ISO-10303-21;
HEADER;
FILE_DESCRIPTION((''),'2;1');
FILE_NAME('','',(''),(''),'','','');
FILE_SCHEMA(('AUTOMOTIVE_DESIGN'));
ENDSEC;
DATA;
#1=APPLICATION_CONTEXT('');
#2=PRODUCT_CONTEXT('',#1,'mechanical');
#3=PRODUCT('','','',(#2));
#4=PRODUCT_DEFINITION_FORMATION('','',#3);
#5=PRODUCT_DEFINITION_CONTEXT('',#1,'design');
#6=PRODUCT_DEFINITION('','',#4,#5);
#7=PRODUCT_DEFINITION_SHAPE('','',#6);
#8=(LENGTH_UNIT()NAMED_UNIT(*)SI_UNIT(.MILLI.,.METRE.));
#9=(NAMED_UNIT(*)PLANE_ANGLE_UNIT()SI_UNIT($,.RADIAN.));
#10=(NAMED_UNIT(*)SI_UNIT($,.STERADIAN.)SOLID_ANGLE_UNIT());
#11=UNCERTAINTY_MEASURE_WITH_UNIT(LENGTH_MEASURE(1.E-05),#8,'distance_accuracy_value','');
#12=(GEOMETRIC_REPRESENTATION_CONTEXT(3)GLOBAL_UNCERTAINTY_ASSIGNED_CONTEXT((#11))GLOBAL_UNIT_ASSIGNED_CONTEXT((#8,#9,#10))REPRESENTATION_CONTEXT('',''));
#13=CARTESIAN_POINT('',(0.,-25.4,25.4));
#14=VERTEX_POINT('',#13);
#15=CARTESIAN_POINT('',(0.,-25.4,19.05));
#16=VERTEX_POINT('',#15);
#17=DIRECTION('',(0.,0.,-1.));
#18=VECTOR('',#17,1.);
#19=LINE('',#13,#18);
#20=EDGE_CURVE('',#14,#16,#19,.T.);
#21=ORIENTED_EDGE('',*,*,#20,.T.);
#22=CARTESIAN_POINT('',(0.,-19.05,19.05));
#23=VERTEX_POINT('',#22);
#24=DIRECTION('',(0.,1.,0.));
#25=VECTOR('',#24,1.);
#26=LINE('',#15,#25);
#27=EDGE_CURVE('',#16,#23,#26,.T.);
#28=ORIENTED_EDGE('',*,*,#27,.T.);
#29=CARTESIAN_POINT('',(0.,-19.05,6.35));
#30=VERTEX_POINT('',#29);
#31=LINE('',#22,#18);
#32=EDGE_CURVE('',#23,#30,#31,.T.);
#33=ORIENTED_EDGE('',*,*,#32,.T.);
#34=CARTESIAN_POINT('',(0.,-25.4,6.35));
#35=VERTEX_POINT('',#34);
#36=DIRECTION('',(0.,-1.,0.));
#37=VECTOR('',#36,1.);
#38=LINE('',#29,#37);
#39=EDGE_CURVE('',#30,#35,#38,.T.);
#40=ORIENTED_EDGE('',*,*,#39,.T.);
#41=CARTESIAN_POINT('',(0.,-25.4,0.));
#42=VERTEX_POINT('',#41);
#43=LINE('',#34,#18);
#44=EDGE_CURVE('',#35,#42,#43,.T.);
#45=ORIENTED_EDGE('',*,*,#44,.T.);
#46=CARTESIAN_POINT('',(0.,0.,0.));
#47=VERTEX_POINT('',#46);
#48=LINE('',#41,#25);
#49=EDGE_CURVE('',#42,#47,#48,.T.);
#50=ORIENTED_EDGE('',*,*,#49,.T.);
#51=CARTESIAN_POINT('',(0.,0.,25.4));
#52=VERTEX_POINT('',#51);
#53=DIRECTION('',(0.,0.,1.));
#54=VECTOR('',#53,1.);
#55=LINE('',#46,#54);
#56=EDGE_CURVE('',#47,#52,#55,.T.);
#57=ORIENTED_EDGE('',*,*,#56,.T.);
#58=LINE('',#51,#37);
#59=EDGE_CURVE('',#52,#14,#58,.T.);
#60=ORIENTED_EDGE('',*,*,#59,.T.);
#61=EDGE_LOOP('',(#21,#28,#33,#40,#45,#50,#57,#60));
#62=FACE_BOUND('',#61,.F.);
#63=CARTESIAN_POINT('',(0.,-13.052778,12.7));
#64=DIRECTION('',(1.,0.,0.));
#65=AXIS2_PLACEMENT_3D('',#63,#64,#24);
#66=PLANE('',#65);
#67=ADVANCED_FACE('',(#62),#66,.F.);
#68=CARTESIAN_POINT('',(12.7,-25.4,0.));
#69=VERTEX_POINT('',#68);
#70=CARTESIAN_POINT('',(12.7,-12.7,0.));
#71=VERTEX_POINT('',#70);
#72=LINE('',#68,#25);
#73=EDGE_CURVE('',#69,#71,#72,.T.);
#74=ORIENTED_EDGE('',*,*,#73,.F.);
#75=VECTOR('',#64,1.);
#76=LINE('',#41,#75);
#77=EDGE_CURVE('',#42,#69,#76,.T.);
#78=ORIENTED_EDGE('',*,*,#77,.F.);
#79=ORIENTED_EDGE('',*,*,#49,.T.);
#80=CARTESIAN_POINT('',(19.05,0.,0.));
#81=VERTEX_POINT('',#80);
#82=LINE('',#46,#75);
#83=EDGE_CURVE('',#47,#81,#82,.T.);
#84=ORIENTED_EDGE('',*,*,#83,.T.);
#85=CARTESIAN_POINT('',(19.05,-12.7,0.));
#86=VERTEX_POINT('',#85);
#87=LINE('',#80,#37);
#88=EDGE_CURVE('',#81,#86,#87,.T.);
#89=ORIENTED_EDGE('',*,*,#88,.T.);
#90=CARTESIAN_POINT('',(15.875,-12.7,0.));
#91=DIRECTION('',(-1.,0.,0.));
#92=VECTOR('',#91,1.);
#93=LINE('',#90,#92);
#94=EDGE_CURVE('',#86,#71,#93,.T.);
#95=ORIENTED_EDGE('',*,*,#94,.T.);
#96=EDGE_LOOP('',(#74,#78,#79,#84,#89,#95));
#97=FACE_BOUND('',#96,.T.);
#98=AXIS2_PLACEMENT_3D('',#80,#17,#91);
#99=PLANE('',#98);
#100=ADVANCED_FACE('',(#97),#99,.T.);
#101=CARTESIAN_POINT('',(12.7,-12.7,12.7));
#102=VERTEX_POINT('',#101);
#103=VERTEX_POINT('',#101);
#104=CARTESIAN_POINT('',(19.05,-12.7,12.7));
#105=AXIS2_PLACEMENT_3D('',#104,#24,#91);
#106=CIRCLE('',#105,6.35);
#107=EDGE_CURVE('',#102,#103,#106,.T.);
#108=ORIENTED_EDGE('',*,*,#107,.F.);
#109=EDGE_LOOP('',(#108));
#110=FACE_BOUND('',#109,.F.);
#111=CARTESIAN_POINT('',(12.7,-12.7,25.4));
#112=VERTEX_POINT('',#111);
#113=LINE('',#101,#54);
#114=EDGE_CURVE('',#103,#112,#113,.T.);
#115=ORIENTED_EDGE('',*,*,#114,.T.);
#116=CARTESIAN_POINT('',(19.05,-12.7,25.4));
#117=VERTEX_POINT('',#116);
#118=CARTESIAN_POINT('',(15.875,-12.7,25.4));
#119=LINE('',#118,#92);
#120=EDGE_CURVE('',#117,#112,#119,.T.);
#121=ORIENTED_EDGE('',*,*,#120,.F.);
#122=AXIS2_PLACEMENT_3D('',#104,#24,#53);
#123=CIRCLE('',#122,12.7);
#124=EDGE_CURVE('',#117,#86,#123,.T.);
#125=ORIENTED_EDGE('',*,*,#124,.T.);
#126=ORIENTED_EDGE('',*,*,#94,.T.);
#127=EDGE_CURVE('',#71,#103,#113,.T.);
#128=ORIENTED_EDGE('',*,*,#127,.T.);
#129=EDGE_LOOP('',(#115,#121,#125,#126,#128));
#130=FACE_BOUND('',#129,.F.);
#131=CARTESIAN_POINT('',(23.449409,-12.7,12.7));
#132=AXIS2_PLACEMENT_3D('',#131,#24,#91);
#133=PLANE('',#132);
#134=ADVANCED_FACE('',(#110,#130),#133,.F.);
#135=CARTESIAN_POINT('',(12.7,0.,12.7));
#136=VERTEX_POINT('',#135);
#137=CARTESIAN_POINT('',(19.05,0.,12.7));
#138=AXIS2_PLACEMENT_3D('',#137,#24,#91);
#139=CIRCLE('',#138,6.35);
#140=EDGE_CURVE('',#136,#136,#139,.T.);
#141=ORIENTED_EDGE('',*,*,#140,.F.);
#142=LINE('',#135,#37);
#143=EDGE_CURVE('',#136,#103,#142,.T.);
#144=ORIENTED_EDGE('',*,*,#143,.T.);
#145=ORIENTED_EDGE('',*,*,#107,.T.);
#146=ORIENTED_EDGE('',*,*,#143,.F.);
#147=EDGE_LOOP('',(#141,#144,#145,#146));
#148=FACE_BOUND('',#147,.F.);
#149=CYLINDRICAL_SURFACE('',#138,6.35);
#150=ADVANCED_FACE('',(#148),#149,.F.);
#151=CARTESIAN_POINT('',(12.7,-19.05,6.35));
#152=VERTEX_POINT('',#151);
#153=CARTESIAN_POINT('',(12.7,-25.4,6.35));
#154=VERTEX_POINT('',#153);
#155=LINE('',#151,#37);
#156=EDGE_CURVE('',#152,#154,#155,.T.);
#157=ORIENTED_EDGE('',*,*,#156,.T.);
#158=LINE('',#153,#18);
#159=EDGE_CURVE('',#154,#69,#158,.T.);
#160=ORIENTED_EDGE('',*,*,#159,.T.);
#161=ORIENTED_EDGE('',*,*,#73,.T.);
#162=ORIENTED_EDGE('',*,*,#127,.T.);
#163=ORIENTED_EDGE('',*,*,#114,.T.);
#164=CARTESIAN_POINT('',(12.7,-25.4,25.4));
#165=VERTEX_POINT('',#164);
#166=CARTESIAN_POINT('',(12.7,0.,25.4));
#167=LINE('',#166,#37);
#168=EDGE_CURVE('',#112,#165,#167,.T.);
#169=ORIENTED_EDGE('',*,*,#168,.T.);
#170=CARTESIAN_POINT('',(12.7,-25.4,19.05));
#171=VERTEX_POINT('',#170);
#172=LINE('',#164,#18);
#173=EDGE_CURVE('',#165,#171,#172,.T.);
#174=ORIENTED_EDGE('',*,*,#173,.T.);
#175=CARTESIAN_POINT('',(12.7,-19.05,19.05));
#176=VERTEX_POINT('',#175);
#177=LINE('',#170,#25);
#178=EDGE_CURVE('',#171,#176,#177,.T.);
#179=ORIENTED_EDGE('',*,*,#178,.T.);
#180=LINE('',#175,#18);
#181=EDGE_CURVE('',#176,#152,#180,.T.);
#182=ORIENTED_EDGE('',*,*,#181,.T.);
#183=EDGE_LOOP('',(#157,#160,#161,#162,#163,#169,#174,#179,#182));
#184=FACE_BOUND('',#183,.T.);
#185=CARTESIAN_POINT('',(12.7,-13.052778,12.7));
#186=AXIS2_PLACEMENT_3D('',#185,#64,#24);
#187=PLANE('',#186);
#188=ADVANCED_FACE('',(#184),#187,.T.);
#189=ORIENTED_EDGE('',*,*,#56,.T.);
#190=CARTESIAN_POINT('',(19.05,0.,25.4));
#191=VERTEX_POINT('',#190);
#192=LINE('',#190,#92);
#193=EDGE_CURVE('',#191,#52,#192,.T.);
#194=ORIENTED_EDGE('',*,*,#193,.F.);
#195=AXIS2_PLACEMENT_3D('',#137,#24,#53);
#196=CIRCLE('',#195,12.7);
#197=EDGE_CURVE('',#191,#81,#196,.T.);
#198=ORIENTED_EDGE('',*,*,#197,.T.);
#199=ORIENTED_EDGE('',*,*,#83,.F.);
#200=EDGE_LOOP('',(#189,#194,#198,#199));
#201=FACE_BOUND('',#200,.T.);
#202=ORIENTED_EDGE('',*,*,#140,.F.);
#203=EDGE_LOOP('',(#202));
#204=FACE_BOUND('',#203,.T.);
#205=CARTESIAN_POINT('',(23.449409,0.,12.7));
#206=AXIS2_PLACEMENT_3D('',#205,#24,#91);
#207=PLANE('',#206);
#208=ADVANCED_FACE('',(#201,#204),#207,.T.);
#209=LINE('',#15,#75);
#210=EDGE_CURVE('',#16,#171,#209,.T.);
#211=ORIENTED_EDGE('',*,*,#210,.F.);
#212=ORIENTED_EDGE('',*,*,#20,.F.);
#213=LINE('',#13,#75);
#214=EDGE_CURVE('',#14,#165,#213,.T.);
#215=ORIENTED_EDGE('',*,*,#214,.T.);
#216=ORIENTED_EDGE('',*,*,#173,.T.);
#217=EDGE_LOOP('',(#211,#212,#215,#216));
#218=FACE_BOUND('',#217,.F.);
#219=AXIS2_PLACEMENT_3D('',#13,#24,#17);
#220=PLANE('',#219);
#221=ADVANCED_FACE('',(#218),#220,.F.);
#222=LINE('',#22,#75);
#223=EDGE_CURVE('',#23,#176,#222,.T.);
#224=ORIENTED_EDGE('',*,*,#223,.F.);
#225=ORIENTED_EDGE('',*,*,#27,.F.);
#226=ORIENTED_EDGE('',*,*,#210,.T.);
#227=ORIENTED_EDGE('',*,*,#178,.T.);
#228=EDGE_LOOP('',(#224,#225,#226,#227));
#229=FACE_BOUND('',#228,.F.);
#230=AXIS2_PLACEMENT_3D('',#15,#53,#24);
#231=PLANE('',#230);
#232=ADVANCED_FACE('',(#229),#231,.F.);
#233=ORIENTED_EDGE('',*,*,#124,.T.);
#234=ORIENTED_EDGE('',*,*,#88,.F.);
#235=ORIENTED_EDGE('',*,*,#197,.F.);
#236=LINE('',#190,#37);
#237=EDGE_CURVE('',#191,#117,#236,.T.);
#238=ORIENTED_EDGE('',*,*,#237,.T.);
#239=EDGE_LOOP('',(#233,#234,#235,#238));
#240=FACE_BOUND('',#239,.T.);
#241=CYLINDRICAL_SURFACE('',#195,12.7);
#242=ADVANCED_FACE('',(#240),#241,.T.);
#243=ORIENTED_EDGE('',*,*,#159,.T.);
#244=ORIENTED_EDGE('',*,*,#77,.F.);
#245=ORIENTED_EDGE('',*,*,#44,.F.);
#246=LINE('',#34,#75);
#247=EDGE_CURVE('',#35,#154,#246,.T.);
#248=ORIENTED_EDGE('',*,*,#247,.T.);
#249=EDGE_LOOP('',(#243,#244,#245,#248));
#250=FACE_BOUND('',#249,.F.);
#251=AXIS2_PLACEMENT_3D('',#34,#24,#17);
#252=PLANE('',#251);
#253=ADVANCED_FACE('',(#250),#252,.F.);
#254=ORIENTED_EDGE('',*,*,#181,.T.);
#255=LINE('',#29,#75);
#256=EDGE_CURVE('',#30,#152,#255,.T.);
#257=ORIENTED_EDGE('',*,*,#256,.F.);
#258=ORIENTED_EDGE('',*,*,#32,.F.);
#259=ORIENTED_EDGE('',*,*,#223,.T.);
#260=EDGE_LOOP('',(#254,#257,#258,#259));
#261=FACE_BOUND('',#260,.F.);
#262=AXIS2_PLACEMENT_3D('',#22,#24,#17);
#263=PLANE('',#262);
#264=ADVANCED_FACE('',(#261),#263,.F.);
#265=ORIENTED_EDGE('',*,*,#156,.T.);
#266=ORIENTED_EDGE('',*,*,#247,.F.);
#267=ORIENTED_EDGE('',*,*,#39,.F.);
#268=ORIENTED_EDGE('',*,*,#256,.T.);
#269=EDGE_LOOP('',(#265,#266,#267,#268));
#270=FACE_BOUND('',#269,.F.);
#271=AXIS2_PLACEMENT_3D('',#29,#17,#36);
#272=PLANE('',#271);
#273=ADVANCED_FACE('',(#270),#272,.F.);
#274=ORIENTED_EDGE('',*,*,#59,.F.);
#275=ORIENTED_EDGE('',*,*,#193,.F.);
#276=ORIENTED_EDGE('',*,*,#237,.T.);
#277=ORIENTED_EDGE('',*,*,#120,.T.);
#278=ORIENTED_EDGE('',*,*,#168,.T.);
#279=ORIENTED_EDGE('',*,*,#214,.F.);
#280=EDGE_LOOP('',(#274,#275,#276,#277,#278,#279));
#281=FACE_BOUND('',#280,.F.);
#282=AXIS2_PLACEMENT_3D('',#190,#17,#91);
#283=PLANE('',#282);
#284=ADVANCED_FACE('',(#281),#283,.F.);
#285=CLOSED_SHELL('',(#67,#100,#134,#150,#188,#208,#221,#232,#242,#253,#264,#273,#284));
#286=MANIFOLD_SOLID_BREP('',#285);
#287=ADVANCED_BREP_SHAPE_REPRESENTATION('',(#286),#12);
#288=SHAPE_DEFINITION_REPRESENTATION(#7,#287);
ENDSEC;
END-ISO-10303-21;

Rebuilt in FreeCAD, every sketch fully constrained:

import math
import FreeCAD as App
import Part
import Sketcher

V = App.Vector
Q = App.Units.Quantity

doc = App.newDocument("Part")
body = doc.addObject("PartDesign::Body", "Body")

# Sketch on YZ plane
sketch1 = body.newObject("Sketcher::SketchObject", "Sketch")
sketch1.AttachmentSupport = (doc.getObject("YZ_Plane"), [""])
sketch1.MapMode = "FlatFace"
sketch1.addGeometry([
    Part.LineSegment(V(-25, 0, 0), V(0, 0, 0)),  # 0
    Part.LineSegment(V(0, 0, 0), V(0, 25, 0)),  # 1
    Part.LineSegment(V(0, 25, 0), V(-25, 25, 0)),  # 2
    Part.LineSegment(V(-25, 25, 0), V(-25, 19, 0)),  # 3
    Part.LineSegment(V(-25, 19, 0), V(-19, 19, 0)),  # 4
    Part.LineSegment(V(-19, 19, 0), V(-19, 6, 0)),  # 5
    Part.LineSegment(V(-19, 6, 0), V(-25, 6, 0)),  # 6
    Part.LineSegment(V(-25, 6, 0), V(-25, 0, 0)),  # 7
], False)
sketch1.addConstraint([
    Sketcher.Constraint("Coincident", 0, 2, 1, 1),
    Sketcher.Constraint("Coincident", 1, 2, 2, 1),
    Sketcher.Constraint("Coincident", 2, 2, 3, 1),
    Sketcher.Constraint("Coincident", 3, 2, 4, 1),
    Sketcher.Constraint("Coincident", 4, 2, 5, 1),
    Sketcher.Constraint("Coincident", 5, 2, 6, 1),
    Sketcher.Constraint("Coincident", 6, 2, 7, 1),
    Sketcher.Constraint("Coincident", 7, 2, 0, 1),
    Sketcher.Constraint("Horizontal", 0),
    Sketcher.Constraint("Vertical", 1),
    Sketcher.Constraint("Horizontal", 2),
    Sketcher.Constraint("Vertical", 3),
    Sketcher.Constraint("Horizontal", 4),
    Sketcher.Constraint("Vertical", 5),
    Sketcher.Constraint("Horizontal", 6),
    Sketcher.Constraint("Vertical", 7),
    Sketcher.Constraint("Coincident", 0, 2, -1, 1),
    Sketcher.Constraint("Vertical", 3, 2, 6, 2),
    Sketcher.Constraint("Equal", 2, 1),
    Sketcher.Constraint("Equal", 6, 3),
    Sketcher.Constraint("Equal", 3, 7),
    Sketcher.Constraint("DistanceX", 0, 1, 0, 2, Q("1 in")),
    Sketcher.Constraint("DistanceY", 5, 2, 5, 1, Q("0.5 in")),
])
pad1 = body.newObject("PartDesign::Pad", "Pad")
pad1.Profile = sketch1
pad1.Length = Q("0.5 in")

# Sketch on XZ plane
sketch2 = body.newObject("Sketcher::SketchObject", "Sketch001")
sketch2.AttachmentSupport = (doc.getObject("XZ_Plane"), [""])
sketch2.MapMode = "FlatFace"
sketch2.addGeometry([
    Part.LineSegment(V(19, 25, 0), V(19, 0, 0)),
    Part.LineSegment(V(19, 0, 0), V(13, 0, 0)),
    Part.LineSegment(V(13, 0, 0), V(13, 25, 0)),
    Part.LineSegment(V(13, 25, 0), V(19, 25, 0)),
], False)
sketch2.addConstraint([
    Sketcher.Constraint("Coincident", 0, 2, 1, 1),
    Sketcher.Constraint("Coincident", 1, 2, 2, 1),
    Sketcher.Constraint("Coincident", 2, 2, 3, 1),
    Sketcher.Constraint("Coincident", 3, 2, 0, 1),
    Sketcher.Constraint("Vertical", 0),
    Sketcher.Constraint("Horizontal", 1),
    Sketcher.Constraint("Vertical", 2),
    Sketcher.Constraint("Horizontal", 3),
    Sketcher.Constraint("PointOnObject", 0, 2, -1),
    Sketcher.Constraint("DistanceY", 0, 2, 0, 1, Q("1 in")),
    Sketcher.Constraint("DistanceX", 1, 2, 1, 1, Q("0.25 in")),
    Sketcher.Constraint("DistanceX", -1, 1, 1, 2, Q("0.5 in")),
])
pad2 = body.newObject("PartDesign::Pad", "Pad001")
pad2.Profile = sketch2
pad2.Length = Q("0.5 in")

# Sketch on XZ plane
sketch3 = body.newObject("Sketcher::SketchObject", "Sketch002")
sketch3.AttachmentSupport = (doc.getObject("XZ_Plane"), [""])
sketch3.MapMode = "FlatFace"
sketch3.addGeometry([
    Part.LineSegment(V(19, 0, 0), V(19, 25, 0)),
    Part.ArcOfCircle(Part.Circle(V(19, 13, 0), V(0, 0, 1), 13), math.radians(-90), math.radians(90)),
], False)
sketch3.addConstraint([
    Sketcher.Constraint("Coincident", 0, 1, 1, 1),
    Sketcher.Constraint("Coincident", 1, 2, 0, 2),
    Sketcher.Constraint("Vertical", 0),
    Sketcher.Constraint("PointOnObject", 0, 1, -1),
    Sketcher.Constraint("Vertical", 1, 3, 0, 1),
    Sketcher.Constraint("Radius", 1, Q("0.5 in")),
    Sketcher.Constraint("DistanceX", -1, 1, 1, 3, Q("0.75 in")),
])
pad3 = body.newObject("PartDesign::Pad", "Pad002")
pad3.Profile = sketch3
pad3.Length = Q("0.5 in")

# Sketch on XZ plane
sketch4 = body.newObject("Sketcher::SketchObject", "Sketch003")
sketch4.AttachmentSupport = (doc.getObject("XZ_Plane"), [""])
sketch4.MapMode = "FlatFace"
sketch4.addGeometry(Part.Circle(V(19, 13, 0), V(0, 0, 1), 6), False)
sketch4.addConstraint([
    Sketcher.Constraint("Diameter", 0, Q("0.5 in")),
    Sketcher.Constraint("DistanceY", -1, 1, 0, 3, Q("0.5 in")),
    Sketcher.Constraint("DistanceX", -1, 1, 0, 3, Q("0.75 in")),
])
pocket1 = body.newObject("PartDesign::Pocket", "Pocket")
pocket1.Profile = sketch4
pocket1.Length = Q("0.5 in")
pocket1.Reversed = True

doc.recompute()
